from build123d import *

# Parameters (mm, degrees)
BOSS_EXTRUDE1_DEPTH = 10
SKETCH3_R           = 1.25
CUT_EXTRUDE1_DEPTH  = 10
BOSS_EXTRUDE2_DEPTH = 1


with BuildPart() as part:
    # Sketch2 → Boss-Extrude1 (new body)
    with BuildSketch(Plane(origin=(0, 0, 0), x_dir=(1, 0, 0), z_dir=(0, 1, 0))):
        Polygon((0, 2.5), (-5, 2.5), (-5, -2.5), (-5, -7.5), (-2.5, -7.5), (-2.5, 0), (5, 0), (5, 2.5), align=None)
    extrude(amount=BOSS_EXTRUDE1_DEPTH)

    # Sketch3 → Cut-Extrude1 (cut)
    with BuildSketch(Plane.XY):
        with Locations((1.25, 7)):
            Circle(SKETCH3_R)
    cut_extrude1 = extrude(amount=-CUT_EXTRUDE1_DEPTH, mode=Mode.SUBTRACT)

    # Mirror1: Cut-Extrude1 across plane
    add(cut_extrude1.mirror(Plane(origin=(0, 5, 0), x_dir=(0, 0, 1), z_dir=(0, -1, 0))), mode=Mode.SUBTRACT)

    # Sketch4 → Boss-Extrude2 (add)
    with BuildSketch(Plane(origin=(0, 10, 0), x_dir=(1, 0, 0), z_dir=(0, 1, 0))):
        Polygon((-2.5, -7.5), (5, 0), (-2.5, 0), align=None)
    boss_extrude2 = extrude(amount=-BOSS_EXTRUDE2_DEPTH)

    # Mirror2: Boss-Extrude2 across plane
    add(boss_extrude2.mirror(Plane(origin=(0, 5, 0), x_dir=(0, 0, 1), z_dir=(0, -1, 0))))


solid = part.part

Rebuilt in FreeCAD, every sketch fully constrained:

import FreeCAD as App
import Part
import Sketcher

V = App.Vector

doc = App.newDocument("Part")
body = doc.addObject("PartDesign::Body", "Body")

# Sketch on XZ plane
sketch1 = doc.addObject("Sketcher::SketchObject", "Sketch")
body.addObject(sketch1)
sketch1.AttachmentSupport = (doc.XZ_Plane, [""])
sketch1.MapMode = "FlatFace"
sketch1.addGeometry(Part.LineSegment(V(-5, -2.5, 0), V(-5, 7.5, 0)), False)
sketch1.addGeometry(Part.LineSegment(V(-5, 7.5, 0), V(-2.5, 7.5, 0)), False)
sketch1.addGeometry(Part.LineSegment(V(-2.5, 7.5, 0), V(-2.5, 0, 0)), False)
sketch1.addGeometry(Part.LineSegment(V(-2.5, 0, 0), V(5, 0, 0)), False)
sketch1.addGeometry(Part.LineSegment(V(5, 0, 0), V(5, -2.5, 0)), False)
sketch1.addGeometry(Part.LineSegment(V(5, -2.5, 0), V(-5, -2.5, 0)), False)
sketch1.addConstraint(Sketcher.Constraint("Coincident", 0, 2, 1, 1))
sketch1.addConstraint(Sketcher.Constraint("Coincident", 1, 2, 2, 1))
sketch1.addConstraint(Sketcher.Constraint("Coincident", 2, 2, 3, 1))
sketch1.addConstraint(Sketcher.Constraint("Coincident", 3, 2, 4, 1))
sketch1.addConstraint(Sketcher.Constraint("Coincident", 4, 2, 5, 1))
sketch1.addConstraint(Sketcher.Constraint("Coincident", 5, 2, 0, 1))
sketch1.addConstraint(Sketcher.Constraint("Vertical", 0))
sketch1.addConstraint(Sketcher.Constraint("Horizontal", 1))
sketch1.addConstraint(Sketcher.Constraint("Vertical", 2))
sketch1.addConstraint(Sketcher.Constraint("Horizontal", 3))
sketch1.addConstraint(Sketcher.Constraint("Vertical", 4))
sketch1.addConstraint(Sketcher.Constraint("Horizontal", 5))
sketch1.addConstraint(Sketcher.Constraint("PointOnObject", 2, 2, -1))
sketch1.addConstraint(Sketcher.Constraint("Equal", 5, 0))
sketch1.addConstraint(Sketcher.Constraint("Equal", 3, 2))
sketch1.addConstraint(Sketcher.Constraint("DistanceX", 5, 2, 5, 1, 10.0))
sketch1.addConstraint(Sketcher.Constraint("DistanceX", 1, 1, 1, 2, 2.5))
sketch1.addConstraint(Sketcher.Constraint("DistanceX", 0, 2, -1, 1, 5.0))
pad1 = doc.addObject("PartDesign::Pad", "Pad")
body.addObject(pad1)
pad1.Profile = sketch1
pad1.Length = 10
pad1.Reversed = True

# Sketch on XY plane
sketch2 = doc.addObject("Sketcher::SketchObject", "Sketch001")
body.addObject(sketch2)
sketch2.AttachmentSupport = (doc.XY_Plane, [""])
sketch2.MapMode = "FlatFace"
sketch2.addGeometry(Part.Circle(V(1.2, 7, 0), V(0, 0, 1), 1.2), False)
sketch2.addConstraint(Sketcher.Constraint("Diameter", 0, 2.5))
sketch2.addConstraint(Sketcher.Constraint("DistanceY", -1, 1, 0, 3, 7.0))
sketch2.addConstraint(Sketcher.Constraint("DistanceX", -1, 1, 0, 3, 1.25))
pocket1 = doc.addObject("PartDesign::Pocket", "Pocket")
body.addObject(pocket1)
pocket1.Profile = sketch2
pocket1.Length = 10
doc.recompute()

datumplane = doc.addObject("PartDesign::Plane", "DatumPlane")
body.addObject(datumplane)
datumplane.AttachmentSupport = (doc.XZ_Plane, [""])
datumplane.MapMode = "FlatFace"
datumplane.AttachmentOffset = App.Placement(V(0, 0, -5), App.Rotation())
mirrored = doc.addObject("PartDesign::Mirrored", "Mirrored")
body.addObject(mirrored)
mirrored.Originals = [pocket1]
mirrored.MirrorPlane = (datumplane, [""])
body.Tip = mirrored

# Sketch on XZ plane
sketch3 = doc.addObject("Sketcher::SketchObject", "Sketch002")
body.addObject(sketch3)
sketch3.AttachmentSupport = (doc.XZ_Plane, [""])
sketch3.MapMode = "FlatFace"
sketch3.AttachmentOffset = App.Placement(V(0, 0, -10), App.Rotation())
sketch3.addGeometry(Part.LineSegment(V(-2, 8, 0), V(5, 0, 0)), False)
sketch3.addGeometry(Part.LineSegment(V(5, 0, 0), V(-2, 0, 0)), False)
sketch3.addGeometry(Part.LineSegment(V(-2, 0, 0), V(-2, 8, 0)), False)
sketch3.addConstraint(Sketcher.Constraint("Coincident", 0, 2, 1, 1))
sketch3.addConstraint(Sketcher.Constraint("Coincident", 1, 2, 2, 1))
sketch3.addConstraint(Sketcher.Constraint("Coincident", 2, 2, 0, 1))
sketch3.addConstraint(Sketcher.Constraint("Horizontal", 1))
sketch3.addConstraint(Sketcher.Constraint("Vertical", 2))
sketch3.addConstraint(Sketcher.Constraint("PointOnObject", 0, 2, -1))
sketch3.addConstraint(Sketcher.Constraint("Equal", 1, 2))
sketch3.addConstraint(Sketcher.Constraint("DistanceX", 1, 2, 1, 1, 7.5))
sketch3.addConstraint(Sketcher.Constraint("DistanceX", -1, 1, 0, 2, 5.0))
pad2 = doc.addObject("PartDesign::Pad", "Pad001")
body.addObject(pad2)
pad2.Profile = sketch3
pad2.Length = 1
doc.recompute()

datumplane2 = doc.addObject("PartDesign::Plane", "DatumPlane001")
body.addObject(datumplane2)
datumplane2.AttachmentSupport = (doc.XZ_Plane, [""])
datumplane2.MapMode = "FlatFace"
datumplane2.AttachmentOffset = App.Placement(V(0, 0, -5), App.Rotation())
mirrored2 = doc.addObject("PartDesign::Mirrored", "Mirrored001")
body.addObject(mirrored2)
mirrored2.Originals = [pad2]
mirrored2.MirrorPlane = (datumplane2, [""])
body.Tip = mirrored2

doc.recompute()
